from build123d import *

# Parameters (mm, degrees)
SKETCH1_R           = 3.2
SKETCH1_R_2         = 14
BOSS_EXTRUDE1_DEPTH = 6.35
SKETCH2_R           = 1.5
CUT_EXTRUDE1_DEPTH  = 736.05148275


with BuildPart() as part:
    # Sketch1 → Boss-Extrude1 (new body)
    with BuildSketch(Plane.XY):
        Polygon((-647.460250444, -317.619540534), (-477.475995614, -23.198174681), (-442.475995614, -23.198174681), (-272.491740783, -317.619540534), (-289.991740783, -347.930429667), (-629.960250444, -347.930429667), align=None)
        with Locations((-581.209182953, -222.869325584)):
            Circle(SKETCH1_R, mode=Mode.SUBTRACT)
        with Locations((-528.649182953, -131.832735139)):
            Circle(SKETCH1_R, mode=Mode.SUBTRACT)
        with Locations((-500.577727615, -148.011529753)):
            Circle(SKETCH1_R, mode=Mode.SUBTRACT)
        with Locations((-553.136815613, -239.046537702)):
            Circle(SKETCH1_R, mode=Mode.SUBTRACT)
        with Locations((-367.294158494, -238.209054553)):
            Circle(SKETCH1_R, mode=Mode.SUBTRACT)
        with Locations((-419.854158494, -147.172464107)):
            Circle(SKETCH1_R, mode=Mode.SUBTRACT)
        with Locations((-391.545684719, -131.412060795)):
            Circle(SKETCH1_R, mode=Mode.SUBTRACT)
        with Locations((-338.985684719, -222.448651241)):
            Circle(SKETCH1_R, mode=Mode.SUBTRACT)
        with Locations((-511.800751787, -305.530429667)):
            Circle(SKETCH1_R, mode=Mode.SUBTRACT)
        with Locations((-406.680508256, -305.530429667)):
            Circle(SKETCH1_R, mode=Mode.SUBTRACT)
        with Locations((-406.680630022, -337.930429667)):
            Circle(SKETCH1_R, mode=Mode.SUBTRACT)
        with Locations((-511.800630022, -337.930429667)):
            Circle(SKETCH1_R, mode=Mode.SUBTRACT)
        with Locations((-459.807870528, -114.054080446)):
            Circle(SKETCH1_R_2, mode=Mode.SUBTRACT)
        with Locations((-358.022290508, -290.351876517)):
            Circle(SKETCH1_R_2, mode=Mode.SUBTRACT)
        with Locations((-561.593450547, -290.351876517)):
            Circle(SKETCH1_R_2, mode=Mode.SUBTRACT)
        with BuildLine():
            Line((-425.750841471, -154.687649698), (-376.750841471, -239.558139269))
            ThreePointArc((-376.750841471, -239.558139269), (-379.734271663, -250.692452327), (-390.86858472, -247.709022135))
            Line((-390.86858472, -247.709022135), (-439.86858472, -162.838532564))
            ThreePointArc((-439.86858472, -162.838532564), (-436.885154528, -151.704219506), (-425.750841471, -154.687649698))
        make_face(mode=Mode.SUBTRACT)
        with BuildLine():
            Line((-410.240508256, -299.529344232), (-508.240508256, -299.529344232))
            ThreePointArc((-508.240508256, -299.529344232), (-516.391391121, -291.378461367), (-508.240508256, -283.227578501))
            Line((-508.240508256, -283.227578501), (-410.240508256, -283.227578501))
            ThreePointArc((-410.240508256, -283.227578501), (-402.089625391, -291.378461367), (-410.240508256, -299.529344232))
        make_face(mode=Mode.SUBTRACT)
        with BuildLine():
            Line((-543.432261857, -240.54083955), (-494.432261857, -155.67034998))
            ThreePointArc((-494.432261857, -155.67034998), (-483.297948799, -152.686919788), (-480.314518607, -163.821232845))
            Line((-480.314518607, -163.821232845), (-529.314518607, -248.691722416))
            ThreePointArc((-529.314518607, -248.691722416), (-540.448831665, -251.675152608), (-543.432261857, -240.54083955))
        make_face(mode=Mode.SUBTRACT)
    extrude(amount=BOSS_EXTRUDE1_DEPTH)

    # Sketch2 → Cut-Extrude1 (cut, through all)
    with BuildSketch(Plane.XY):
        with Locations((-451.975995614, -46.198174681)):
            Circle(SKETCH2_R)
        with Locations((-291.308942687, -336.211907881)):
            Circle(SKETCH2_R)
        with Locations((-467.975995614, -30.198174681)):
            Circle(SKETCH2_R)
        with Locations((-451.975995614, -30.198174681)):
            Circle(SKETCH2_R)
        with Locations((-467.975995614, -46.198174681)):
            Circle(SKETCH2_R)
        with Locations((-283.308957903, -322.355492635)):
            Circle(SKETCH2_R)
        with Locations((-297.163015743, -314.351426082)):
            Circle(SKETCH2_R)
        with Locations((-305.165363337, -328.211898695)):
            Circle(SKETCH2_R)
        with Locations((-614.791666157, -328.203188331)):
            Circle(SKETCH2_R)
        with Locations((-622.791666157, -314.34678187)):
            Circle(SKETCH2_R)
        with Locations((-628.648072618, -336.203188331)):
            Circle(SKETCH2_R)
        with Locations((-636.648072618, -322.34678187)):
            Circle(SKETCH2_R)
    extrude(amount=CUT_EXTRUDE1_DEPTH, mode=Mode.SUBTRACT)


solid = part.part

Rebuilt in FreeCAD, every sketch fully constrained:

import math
import FreeCAD as App
import Part
import Sketcher
from FreeCAD import Vector
Q = App.Units.Quantity


def add_polygon(sketch, points):
    """Adds a closed chain of lines whose ends are joined by coincident constraints."""
    first, n = sketch.GeometryCount, len(points)
    for a, b in zip(points, points[1:] + points[:1]):
        sketch.addGeometry(Part.LineSegment(App.Vector(*a, 0), App.Vector(*b, 0)), False)
    for i in range(n):
        sketch.addConstraint(Sketcher.Constraint("Coincident", first + i, 2, first + (i + 1) % n, 1))

doc = App.newDocument("Part")
params = doc.addObject("Spreadsheet::Sheet", "Params")
for row, (alias, value) in enumerate([
    ("sketch1_diameter", "28 mm"),
    ("sketch1_diameter2", "6.4 mm"),
    ("sketch1_width", "35 mm"),
    ("sketch1_width2", "98 mm"),
    ("sketch1_length", "35 mm"),
    ("pad1_length", "6.35 mm"),
    ("sketch2_diameter", "3 mm"),
], start=1):
    params.set(f"A{row}", alias)
    params.set(f"B{row}", "=" + value)
    params.setAlias(f"B{row}", alias)

body = doc.addObject("PartDesign::Body", "Body")

sketch1 = body.newObject("Sketcher::SketchObject", "Sketch")
sketch1.AttachmentSupport = (doc.getObject("XY_Plane"), [""])
sketch1.MapMode = "FlatFace"
add_polygon(sketch1, [(-477.475996, -23.198175), (-647.46025, -317.619541), (-629.96025, -347.93043), (-289.991741, -347.93043), (-272.491741, -317.619541), (-442.475996, -23.198175)])
sketch1.addGeometry(Part.Circle(Vector(-358.022291, -290.351877, 0), Vector(0, 0, 1), 14), False)
sketch1.addGeometry(Part.Circle(Vector(-406.68063, -337.93043, 0), Vector(0, 0, 1), 3.2), False)
sketch1.addGeometry(Part.Circle(Vector(-406.680508, -305.53043, 0), Vector(0, 0, 1), 3.2), False)
sketch1.addGeometry(Part.LineSegment(Vector(-410.240508, -299.529344, 0), Vector(-508.240508, -299.529344, 0)), False)
sketch1.addGeometry(Part.ArcOfCircle(Part.Circle(Vector(-508.240508, -291.378461, 0), Vector(0, 0, 1), 8.150883), math.radians(90), math.radians(270)), False)
sketch1.addGeometry(Part.LineSegment(Vector(-508.240508, -283.227579, 0), Vector(-410.240508, -283.227579, 0)), False)
sketch1.addGeometry(Part.ArcOfCircle(Part.Circle(Vector(-410.240508, -291.378461, 0), Vector(0, 0, 1), 8.150883), math.radians(-90), math.radians(90)), False)
sketch1.addGeometry(Part.Circle(Vector(-338.985685, -222.448651, 0), Vector(0, 0, 1), 3.2), False)
sketch1.addGeometry(Part.Circle(Vector(-367.294158, -238.209055, 0), Vector(0, 0, 1), 3.2), False)
sketch1.addGeometry(Part.Circle(Vector(-511.80063, -337.93043, 0), Vector(0, 0, 1), 3.2), False)
sketch1.addGeometry(Part.Circle(Vector(-511.800752, -305.53043, 0), Vector(0, 0, 1), 3.2), False)
sketch1.addGeometry(Part.Circle(Vector(-561.593451, -290.351877, 0), Vector(0, 0, 1), 14), False)
sketch1.addGeometry(Part.Circle(Vector(-553.136816, -239.046538, 0), Vector(0, 0, 1), 3.2), False)
sketch1.addGeometry(Part.Circle(Vector(-581.209183, -222.869326, 0), Vector(0, 0, 1), 3.2), False)
sketch1.addGeometry(Part.LineSegment(Vector(-425.750841, -154.68765, 0), Vector(-376.750841, -239.558139, 0)), False)
sketch1.addGeometry(Part.ArcOfCircle(Part.Circle(Vector(-383.809713, -243.633581, 0), Vector(0, 0, 1), 8.150883), math.radians(-150), math.radians(30)), False)
sketch1.addGeometry(Part.LineSegment(Vector(-390.868585, -247.709022, 0), Vector(-439.868585, -162.838533, 0)), False)
sketch1.addGeometry(Part.ArcOfCircle(Part.Circle(Vector(-432.809713, -158.763091, 0), Vector(0, 0, 1), 8.150883), math.radians(30), math.radians(210)), False)
sketch1.addGeometry(Part.Circle(Vector(-391.545685, -131.412061, 0), Vector(0, 0, 1), 3.2), False)
sketch1.addGeometry(Part.Circle(Vector(-419.854158, -147.172464, 0), Vector(0, 0, 1), 3.2), False)
sketch1.addGeometry(Part.Circle(Vector(-459.807871, -114.05408, 0), Vector(0, 0, 1), 14), False)
sketch1.addGeometry(Part.LineSegment(Vector(-543.432262, -240.54084, 0), Vector(-494.432262, -155.67035, 0)), False)
sketch1.addGeometry(Part.ArcOfCircle(Part.Circle(Vector(-487.37339, -159.745791, 0), Vector(0, 0, 1), 8.150883), math.radians(-30), math.radians(150)), False)
sketch1.addGeometry(Part.LineSegment(Vector(-480.314519, -163.821233, 0), Vector(-529.314519, -248.691722, 0)), False)
sketch1.addGeometry(Part.ArcOfCircle(Part.Circle(Vector(-536.37339, -244.616281, 0), Vector(0, 0, 1), 8.150883), math.radians(150), math.radians(330)), False)
sketch1.addGeometry(Part.Circle(Vector(-500.577728, -148.01153, 0), Vector(0, 0, 1), 3.2), False)
sketch1.addGeometry(Part.Circle(Vector(-528.649183, -131.832735, 0), Vector(0, 0, 1), 3.2), False)
sketch1.addConstraint(Sketcher.Constraint("Tangent", 9, 2, 10, 2))
sketch1.addConstraint(Sketcher.Constraint("Tangent", 10, 1, 11, 1))
sketch1.addConstraint(Sketcher.Constraint("Tangent", 11, 2, 12, 2))
sketch1.addConstraint(Sketcher.Constraint("Tangent", 12, 1, 9, 1))
sketch1.addConstraint(Sketcher.Constraint("Tangent", 20, 2, 21, 2))
sketch1.addConstraint(Sketcher.Constraint("Tangent", 21, 1, 22, 1))
sketch1.addConstraint(Sketcher.Constraint("Tangent", 22, 2, 23, 2))
sketch1.addConstraint(Sketcher.Constraint("Tangent", 23, 1, 20, 1))
sketch1.addConstraint(Sketcher.Constraint("Tangent", 27, 2, 28, 2))
sketch1.addConstraint(Sketcher.Constraint("Tangent", 28, 1, 29, 1))
sketch1.addConstraint(Sketcher.Constraint("Tangent", 29, 2, 30, 2))
sketch1.addConstraint(Sketcher.Constraint("Tangent", 30, 1, 27, 1))
sketch1.addConstraint(Sketcher.Constraint("Horizontal", 2))
sketch1.addConstraint(Sketcher.Constraint("Horizontal", 5))
sketch1.addConstraint(Sketcher.Constraint("Horizontal", 9))
sketch1.addConstraint(Sketcher.Constraint("Horizontal", 11))
sketch1.addConstraint(Sketcher.Constraint("Equal", 7, 8))
sketch1.addConstraint(Sketcher.Constraint("Equal", 8, 13))
sketch1.addConstraint(Sketcher.Constraint("Equal", 13, 14))
sketch1.addConstraint(Sketcher.Constraint("Equal", 14, 15))
sketch1.addConstraint(Sketcher.Constraint("Equal", 15, 16))
sketch1.addConstraint(Sketcher.Constraint("Equal", 6, 17))
sketch1.addConstraint(Sketcher.Constraint("Equal", 16, 18))
sketch1.addConstraint(Sketcher.Constraint("Equal", 18, 19))
sketch1.addConstraint(Sketcher.Constraint("Equal", 12, 21))
sketch1.addConstraint(Sketcher.Constraint("Equal", 21, 23))
sketch1.addConstraint(Sketcher.Constraint("Equal", 19, 24))
sketch1.addConstraint(Sketcher.Constraint("Equal", 24, 25))
sketch1.addConstraint(Sketcher.Constraint("Equal", 17, 26))
sketch1.addConstraint(Sketcher.Constraint("Equal", 23, 28))
sketch1.addConstraint(Sketcher.Constraint("Equal", 28, 30))
sketch1.addConstraint(Sketcher.Constraint("Equal", 25, 31))
sketch1.addConstraint(Sketcher.Constraint("Equal", 31, 32))
sketch1.addConstraint(Sketcher.Constraint("Parallel", 0, 3))
sketch1.addConstraint(Sketcher.Constraint("Parallel", 1, 4))
sketch1.addConstraint(Sketcher.Constraint("Parallel", 4, 20))
sketch1.addConstraint(Sketcher.Constraint("Parallel", 3, 27))
sketch1.addConstraint(Sketcher.Constraint("Horizontal", 7, 3, 15, 3))
sketch1.addConstraint(Sketcher.Constraint("Horizontal", 8, 3, 16, 3))
sketch1.addConstraint(Sketcher.Constraint("Horizontal", 6, 3, 17, 3))
sketch1.addConstraint(Sketcher.Constraint("Horizontal", 0, 2, 3, 2))
sketch1.addConstraint(Sketcher.Constraint("Equal", 1, 3))
sketch1.addConstraint(Sketcher.Constraint("Equal", 22, 27))
sketch1.addConstraint(Sketcher.Constraint("Diameter", 6, 28.0))
sketch1.addConstraint(Sketcher.Constraint("Diameter", 7, 6.4))
sketch1.addConstraint(Sketcher.Constraint("DistanceX", 5, 2, 5, 1, 35.0))
sketch1.addConstraint(Sketcher.Constraint("DistanceX", 9, 2, 9, 1, 98.0))
sketch1.addConstraint(Sketcher.Constraint("Angle", 0, Q("-120 deg")))
sketch1.addConstraint(Sketcher.Constraint("Distance", 1, 35.0))
sketch1.addConstraint(Sketcher.Constraint("Distance", 20, 98.0))
sketch1.addConstraint(Sketcher.Constraint("DistanceY", 1, 2, 15, 3, 10.0))
sketch1.addConstraint(Sketcher.Constraint("DistanceY", 7, 3, 8, 3, 32.4))
sketch1.addConstraint(Sketcher.Constraint("DistanceX", 10, 3, 8, 3, 101.56))
sketch1.addConstraint(Sketcher.Constraint("DistanceX", 15, 3, 7, 3, 105.12))
sketch1.addConstraint(Sketcher.Constraint("DistanceX", 24, 3, 13, 3, 52.56))
sketch1.addConstraint(Sketcher.Constraint("DistanceX", 25, 3, 14, 3, 52.56))
sketch1.addConstraint(Sketcher.Constraint("DistanceX", 19, 3, 32, 3, 52.56))
sketch1.addConstraint(Sketcher.Constraint("Radius", 10, 8.150883))
sketch1.addConstraint(Sketcher.Constraint("DistanceX", 2, 1, 2, 2, 339.96851))
sketch1.addConstraint(Sketcher.Constraint("DistanceX", 17, 3, 16, 3, 49.792699))
sketch1.addConstraint(Sketcher.Constraint("DistanceY", 12, 3, 24, 3, 159.966401))
sketch1.addConstraint(Sketcher.Constraint("DistanceY", 21, 3, 26, 3, 129.5795))
sketch1.addConstraint(Sketcher.Constraint("DistanceY", 28, 3, 23, 3, 0.9827))
sketch1.addConstraint(Sketcher.Constraint("DistanceX", 0, 2, 17, 3, 85.8668))
sketch1.addConstraint(Sketcher.Constraint("DistanceY", 17, 3, 10, 1, 7.124298))
sketch1.addConstraint(Sketcher.Constraint("DistanceX", 22, 2, 24, 3, 48.3229))
sketch1.addConstraint(Sketcher.Constraint("DistanceY", 30, 1, 18, 3, 1.494302))
sketch1.addConstraint(Sketcher.Constraint("DistanceX", 6, 3, -1, 1, 358.022291))
sketch1.addConstraint(Sketcher.Constraint("DistanceX", 7, 3, -1, 1, 406.68063))
sketch1.addConstraint(Sketcher.Constraint("DistanceY", 7, 3, -1, 1, 337.93043))
sketch1.addConstraint(Sketcher.Constraint("DistanceX", 8, 3, -1, 1, 406.680508))
sketch1.addConstraint(Sketcher.Constraint("DistanceY", 10, 3, -1, 1, 291.378461))
sketch1.addConstraint(Sketcher.Constraint("DistanceY", 13, 3, -1, 1, 222.448651))
sketch1.addConstraint(Sketcher.Constraint("DistanceX", 14, 3, -1, 1, 367.294158))
sketch1.addConstraint(Sketcher.Constraint("DistanceX", 16, 3, -1, 1, 511.800752))
sketch1.addConstraint(Sketcher.Constraint("DistanceY", 21, 3, -1, 1, 243.633581))
sketch1.addConstraint(Sketcher.Constraint("DistanceX", 26, 3, -1, 1, 459.807871))
sketch1.addConstraint(Sketcher.Constraint("DistanceX", 28, 3, -1, 1, 487.37339))
sketch1.addConstraint(Sketcher.Constraint("DistanceY", 31, 3, -1, 1, 148.01153))
sketch1.addConstraint(Sketcher.Constraint("DistanceX", 20, 2, -1, 1, 376.750841))
sketch1.addConstraint(Sketcher.Constraint("DistanceY", 6, 3, 14, 3, 52.142822))
sketch1.addConstraint(Sketcher.Constraint("DistanceY", 17, 3, 19, 3, 67.482551))
sketch1.addConstraint(Sketcher.Constraint("DistanceX", 19, 3, 16, 3, 69.408431))
sketch1.addConstraint(Sketcher.Constraint("DistanceY", 14, 3, 25, 3, 91.03659))
sketch1.addConstraint(Sketcher.Constraint("DistanceX", 31, 3, 25, 3, 80.723569))
sketch1.addConstraint(Sketcher.Constraint("DistanceY", 19, 3, 32, 3, 91.03659))
sketch1.addConstraint(Sketcher.Constraint("DistanceX", 18, 3, -1, 1, 553.136816))
sketch1.setExpression("Constraints[49]", "Params.sketch1_diameter")
sketch1.setExpression("Constraints[50]", "Params.sketch1_diameter2")
sketch1.setExpression("Constraints[51]", "Params.sketch1_width")
sketch1.setExpression("Constraints[52]", "Params.sketch1_width2")
sketch1.setExpression("Constraints[54]", "Params.sketch1_length")
pad1 = body.newObject("PartDesign::Pad", "Pad")
pad1.Profile = sketch1
pad1.setExpression("Length", "Params.pad1_length")

sketch2 = body.newObject("Sketcher::SketchObject", "Sketch001")
sketch2.AttachmentSupport = (doc.getObject("XY_Plane"), [""])
sketch2.MapMode = "FlatFace"
sketch2.addGeometry(Part.Circle(Vector(-451.975996, -46.198175, 0), Vector(0, 0, 1), 1.5), False)
sketch2.addGeometry(Part.Circle(Vector(-291.308943, -336.211908, 0), Vector(0, 0, 1), 1.5), False)
sketch2.addGeometry(Part.Circle(Vector(-467.975996, -30.198175, 0), Vector(0, 0, 1), 1.5), False)
sketch2.addGeometry(Part.Circle(Vector(-451.975996, -30.198175, 0), Vector(0, 0, 1), 1.5), False)
sketch2.addGeometry(Part.Circle(Vector(-467.975996, -46.198175, 0), Vector(0, 0, 1), 1.5), False)
sketch2.addGeometry(Part.Circle(Vector(-283.308958, -322.355493, 0), Vector(0, 0, 1), 1.5), False)
sketch2.addGeometry(Part.Circle(Vector(-297.163016, -314.351426, 0), Vector(0, 0, 1), 1.5), False)
sketch2.addGeometry(Part.Circle(Vector(-305.165363, -328.211899, 0), Vector(0, 0, 1), 1.5), False)
sketch2.addGeometry(Part.Circle(Vector(-614.791666, -328.203188, 0), Vector(0, 0, 1), 1.5), False)
sketch2.addGeometry(Part.Circle(Vector(-622.791666, -314.346782, 0), Vector(0, 0, 1), 1.5), False)
sketch2.addGeometry(Part.Circle(Vector(-628.648073, -336.203188, 0), Vector(0, 0, 1), 1.5), False)
sketch2.addGeometry(Part.Circle(Vector(-636.648073, -322.346782, 0), Vector(0, 0, 1), 1.5), False)
sketch2.addConstraint(Sketcher.Constraint("Equal", 0, 1))
sketch2.addConstraint(Sketcher.Constraint("Equal", 1, 2))
sketch2.addConstraint(Sketcher.Constraint("Equal", 2, 3))
sketch2.addConstraint(Sketcher.Constraint("Equal", 3, 4))
sketch2.addConstraint(Sketcher.Constraint("Equal", 4, 5))
sketch2.addConstraint(Sketcher.Constraint("Equal", 5, 6))
sketch2.addConstraint(Sketcher.Constraint("Equal", 6, 7))
sketch2.addConstraint(Sketcher.Constraint("Equal", 7, 8))
sketch2.addConstraint(Sketcher.Constraint("Equal", 8, 9))
sketch2.addConstraint(Sketcher.Constraint("Equal", 9, 10))
sketch2.addConstraint(Sketcher.Constraint("Equal", 10, 11))
sketch2.addConstraint(Sketcher.Constraint("Horizontal", 2, 3, 3, 3))
sketch2.addConstraint(Sketcher.Constraint("Horizontal", 0, 3, 4, 3))
sketch2.addConstraint(Sketcher.Constraint("Vertical", 0, 3, 3, 3))
sketch2.addConstraint(Sketcher.Constraint("Vertical", 2, 3, 4, 3))
sketch2.addConstraint(Sketcher.Constraint("Diameter", 0, 3.0))
sketch2.addConstraint(Sketcher.Constraint("DistanceX", 2, 3, 0, 3, 16.0))
sketch2.addConstraint(Sketcher.Constraint("DistanceY", 0, 3, 2, 3, 16.0))
sketch2.addConstraint(Sketcher.Constraint("DistanceX", 9, 3, 8, 3, 8.0))
sketch2.addConstraint(Sketcher.Constraint("DistanceY", 10, 3, 8, 3, 8.0))
sketch2.addConstraint(Sketcher.Constraint("DistanceY", 11, 3, 9, 3, 8.0))
sketch2.addConstraint(Sketcher.Constraint("DistanceX", 11, 3, 10, 3, 8.0))
sketch2.addConstraint(Sketcher.Constraint("DistanceY", 7, 3, -1, 1, 328.211899))
sketch2.addConstraint(Sketcher.Constraint("DistanceY", 8, 3, -1, 1, 328.203188))
sketch2.addConstraint(Sketcher.Constraint("DistanceY", 9, 3, -1, 1, 314.346782))
sketch2.addConstraint(Sketcher.Constraint("DistanceY", 1, 3, 6, 3, 21.860482))
sketch2.addConstraint(Sketcher.Constraint("DistanceX", 0, 3, 6, 3, 154.81298))
sketch2.addConstraint(Sketcher.Constraint("DistanceY", 6, 3, 0, 3, 268.153251))
sketch2.addConstraint(Sketcher.Constraint("DistanceX", 7, 3, 1, 3, 13.856421))
sketch2.addConstraint(Sketcher.Constraint("DistanceY", 1, 3, 7, 3, 8.000009))
sketch2.addConstraint(Sketcher.Constraint("DistanceX", 8, 3, 6, 3, 317.62865))
sketch2.addConstraint(Sketcher.Constraint("DistanceX", 10, 3, 7, 3, 323.482709))
sketch2.addConstraint(Sketcher.Constraint("DistanceX", 0, 3, -1, 1, 451.975996))
sketch2.addConstraint(Sketcher.Constraint("DistanceX", 1, 3, -1, 1, 291.308943))
sketch2.addConstraint(Sketcher.Constraint("DistanceX", 5, 3, -1, 1, 283.308958))
sketch2.addConstraint(Sketcher.Constraint("DistanceY", 5, 3, -1, 1, 322.355493))
sketch2.setExpression("Constraints[15]", "Params.sketch2_diameter")
pocket1 = body.newObject("PartDesign::Pocket", "Pocket")
pocket1.Profile = sketch2
pocket1.Type = "ThroughAll"
pocket1.Reversed = True

doc.recompute()
